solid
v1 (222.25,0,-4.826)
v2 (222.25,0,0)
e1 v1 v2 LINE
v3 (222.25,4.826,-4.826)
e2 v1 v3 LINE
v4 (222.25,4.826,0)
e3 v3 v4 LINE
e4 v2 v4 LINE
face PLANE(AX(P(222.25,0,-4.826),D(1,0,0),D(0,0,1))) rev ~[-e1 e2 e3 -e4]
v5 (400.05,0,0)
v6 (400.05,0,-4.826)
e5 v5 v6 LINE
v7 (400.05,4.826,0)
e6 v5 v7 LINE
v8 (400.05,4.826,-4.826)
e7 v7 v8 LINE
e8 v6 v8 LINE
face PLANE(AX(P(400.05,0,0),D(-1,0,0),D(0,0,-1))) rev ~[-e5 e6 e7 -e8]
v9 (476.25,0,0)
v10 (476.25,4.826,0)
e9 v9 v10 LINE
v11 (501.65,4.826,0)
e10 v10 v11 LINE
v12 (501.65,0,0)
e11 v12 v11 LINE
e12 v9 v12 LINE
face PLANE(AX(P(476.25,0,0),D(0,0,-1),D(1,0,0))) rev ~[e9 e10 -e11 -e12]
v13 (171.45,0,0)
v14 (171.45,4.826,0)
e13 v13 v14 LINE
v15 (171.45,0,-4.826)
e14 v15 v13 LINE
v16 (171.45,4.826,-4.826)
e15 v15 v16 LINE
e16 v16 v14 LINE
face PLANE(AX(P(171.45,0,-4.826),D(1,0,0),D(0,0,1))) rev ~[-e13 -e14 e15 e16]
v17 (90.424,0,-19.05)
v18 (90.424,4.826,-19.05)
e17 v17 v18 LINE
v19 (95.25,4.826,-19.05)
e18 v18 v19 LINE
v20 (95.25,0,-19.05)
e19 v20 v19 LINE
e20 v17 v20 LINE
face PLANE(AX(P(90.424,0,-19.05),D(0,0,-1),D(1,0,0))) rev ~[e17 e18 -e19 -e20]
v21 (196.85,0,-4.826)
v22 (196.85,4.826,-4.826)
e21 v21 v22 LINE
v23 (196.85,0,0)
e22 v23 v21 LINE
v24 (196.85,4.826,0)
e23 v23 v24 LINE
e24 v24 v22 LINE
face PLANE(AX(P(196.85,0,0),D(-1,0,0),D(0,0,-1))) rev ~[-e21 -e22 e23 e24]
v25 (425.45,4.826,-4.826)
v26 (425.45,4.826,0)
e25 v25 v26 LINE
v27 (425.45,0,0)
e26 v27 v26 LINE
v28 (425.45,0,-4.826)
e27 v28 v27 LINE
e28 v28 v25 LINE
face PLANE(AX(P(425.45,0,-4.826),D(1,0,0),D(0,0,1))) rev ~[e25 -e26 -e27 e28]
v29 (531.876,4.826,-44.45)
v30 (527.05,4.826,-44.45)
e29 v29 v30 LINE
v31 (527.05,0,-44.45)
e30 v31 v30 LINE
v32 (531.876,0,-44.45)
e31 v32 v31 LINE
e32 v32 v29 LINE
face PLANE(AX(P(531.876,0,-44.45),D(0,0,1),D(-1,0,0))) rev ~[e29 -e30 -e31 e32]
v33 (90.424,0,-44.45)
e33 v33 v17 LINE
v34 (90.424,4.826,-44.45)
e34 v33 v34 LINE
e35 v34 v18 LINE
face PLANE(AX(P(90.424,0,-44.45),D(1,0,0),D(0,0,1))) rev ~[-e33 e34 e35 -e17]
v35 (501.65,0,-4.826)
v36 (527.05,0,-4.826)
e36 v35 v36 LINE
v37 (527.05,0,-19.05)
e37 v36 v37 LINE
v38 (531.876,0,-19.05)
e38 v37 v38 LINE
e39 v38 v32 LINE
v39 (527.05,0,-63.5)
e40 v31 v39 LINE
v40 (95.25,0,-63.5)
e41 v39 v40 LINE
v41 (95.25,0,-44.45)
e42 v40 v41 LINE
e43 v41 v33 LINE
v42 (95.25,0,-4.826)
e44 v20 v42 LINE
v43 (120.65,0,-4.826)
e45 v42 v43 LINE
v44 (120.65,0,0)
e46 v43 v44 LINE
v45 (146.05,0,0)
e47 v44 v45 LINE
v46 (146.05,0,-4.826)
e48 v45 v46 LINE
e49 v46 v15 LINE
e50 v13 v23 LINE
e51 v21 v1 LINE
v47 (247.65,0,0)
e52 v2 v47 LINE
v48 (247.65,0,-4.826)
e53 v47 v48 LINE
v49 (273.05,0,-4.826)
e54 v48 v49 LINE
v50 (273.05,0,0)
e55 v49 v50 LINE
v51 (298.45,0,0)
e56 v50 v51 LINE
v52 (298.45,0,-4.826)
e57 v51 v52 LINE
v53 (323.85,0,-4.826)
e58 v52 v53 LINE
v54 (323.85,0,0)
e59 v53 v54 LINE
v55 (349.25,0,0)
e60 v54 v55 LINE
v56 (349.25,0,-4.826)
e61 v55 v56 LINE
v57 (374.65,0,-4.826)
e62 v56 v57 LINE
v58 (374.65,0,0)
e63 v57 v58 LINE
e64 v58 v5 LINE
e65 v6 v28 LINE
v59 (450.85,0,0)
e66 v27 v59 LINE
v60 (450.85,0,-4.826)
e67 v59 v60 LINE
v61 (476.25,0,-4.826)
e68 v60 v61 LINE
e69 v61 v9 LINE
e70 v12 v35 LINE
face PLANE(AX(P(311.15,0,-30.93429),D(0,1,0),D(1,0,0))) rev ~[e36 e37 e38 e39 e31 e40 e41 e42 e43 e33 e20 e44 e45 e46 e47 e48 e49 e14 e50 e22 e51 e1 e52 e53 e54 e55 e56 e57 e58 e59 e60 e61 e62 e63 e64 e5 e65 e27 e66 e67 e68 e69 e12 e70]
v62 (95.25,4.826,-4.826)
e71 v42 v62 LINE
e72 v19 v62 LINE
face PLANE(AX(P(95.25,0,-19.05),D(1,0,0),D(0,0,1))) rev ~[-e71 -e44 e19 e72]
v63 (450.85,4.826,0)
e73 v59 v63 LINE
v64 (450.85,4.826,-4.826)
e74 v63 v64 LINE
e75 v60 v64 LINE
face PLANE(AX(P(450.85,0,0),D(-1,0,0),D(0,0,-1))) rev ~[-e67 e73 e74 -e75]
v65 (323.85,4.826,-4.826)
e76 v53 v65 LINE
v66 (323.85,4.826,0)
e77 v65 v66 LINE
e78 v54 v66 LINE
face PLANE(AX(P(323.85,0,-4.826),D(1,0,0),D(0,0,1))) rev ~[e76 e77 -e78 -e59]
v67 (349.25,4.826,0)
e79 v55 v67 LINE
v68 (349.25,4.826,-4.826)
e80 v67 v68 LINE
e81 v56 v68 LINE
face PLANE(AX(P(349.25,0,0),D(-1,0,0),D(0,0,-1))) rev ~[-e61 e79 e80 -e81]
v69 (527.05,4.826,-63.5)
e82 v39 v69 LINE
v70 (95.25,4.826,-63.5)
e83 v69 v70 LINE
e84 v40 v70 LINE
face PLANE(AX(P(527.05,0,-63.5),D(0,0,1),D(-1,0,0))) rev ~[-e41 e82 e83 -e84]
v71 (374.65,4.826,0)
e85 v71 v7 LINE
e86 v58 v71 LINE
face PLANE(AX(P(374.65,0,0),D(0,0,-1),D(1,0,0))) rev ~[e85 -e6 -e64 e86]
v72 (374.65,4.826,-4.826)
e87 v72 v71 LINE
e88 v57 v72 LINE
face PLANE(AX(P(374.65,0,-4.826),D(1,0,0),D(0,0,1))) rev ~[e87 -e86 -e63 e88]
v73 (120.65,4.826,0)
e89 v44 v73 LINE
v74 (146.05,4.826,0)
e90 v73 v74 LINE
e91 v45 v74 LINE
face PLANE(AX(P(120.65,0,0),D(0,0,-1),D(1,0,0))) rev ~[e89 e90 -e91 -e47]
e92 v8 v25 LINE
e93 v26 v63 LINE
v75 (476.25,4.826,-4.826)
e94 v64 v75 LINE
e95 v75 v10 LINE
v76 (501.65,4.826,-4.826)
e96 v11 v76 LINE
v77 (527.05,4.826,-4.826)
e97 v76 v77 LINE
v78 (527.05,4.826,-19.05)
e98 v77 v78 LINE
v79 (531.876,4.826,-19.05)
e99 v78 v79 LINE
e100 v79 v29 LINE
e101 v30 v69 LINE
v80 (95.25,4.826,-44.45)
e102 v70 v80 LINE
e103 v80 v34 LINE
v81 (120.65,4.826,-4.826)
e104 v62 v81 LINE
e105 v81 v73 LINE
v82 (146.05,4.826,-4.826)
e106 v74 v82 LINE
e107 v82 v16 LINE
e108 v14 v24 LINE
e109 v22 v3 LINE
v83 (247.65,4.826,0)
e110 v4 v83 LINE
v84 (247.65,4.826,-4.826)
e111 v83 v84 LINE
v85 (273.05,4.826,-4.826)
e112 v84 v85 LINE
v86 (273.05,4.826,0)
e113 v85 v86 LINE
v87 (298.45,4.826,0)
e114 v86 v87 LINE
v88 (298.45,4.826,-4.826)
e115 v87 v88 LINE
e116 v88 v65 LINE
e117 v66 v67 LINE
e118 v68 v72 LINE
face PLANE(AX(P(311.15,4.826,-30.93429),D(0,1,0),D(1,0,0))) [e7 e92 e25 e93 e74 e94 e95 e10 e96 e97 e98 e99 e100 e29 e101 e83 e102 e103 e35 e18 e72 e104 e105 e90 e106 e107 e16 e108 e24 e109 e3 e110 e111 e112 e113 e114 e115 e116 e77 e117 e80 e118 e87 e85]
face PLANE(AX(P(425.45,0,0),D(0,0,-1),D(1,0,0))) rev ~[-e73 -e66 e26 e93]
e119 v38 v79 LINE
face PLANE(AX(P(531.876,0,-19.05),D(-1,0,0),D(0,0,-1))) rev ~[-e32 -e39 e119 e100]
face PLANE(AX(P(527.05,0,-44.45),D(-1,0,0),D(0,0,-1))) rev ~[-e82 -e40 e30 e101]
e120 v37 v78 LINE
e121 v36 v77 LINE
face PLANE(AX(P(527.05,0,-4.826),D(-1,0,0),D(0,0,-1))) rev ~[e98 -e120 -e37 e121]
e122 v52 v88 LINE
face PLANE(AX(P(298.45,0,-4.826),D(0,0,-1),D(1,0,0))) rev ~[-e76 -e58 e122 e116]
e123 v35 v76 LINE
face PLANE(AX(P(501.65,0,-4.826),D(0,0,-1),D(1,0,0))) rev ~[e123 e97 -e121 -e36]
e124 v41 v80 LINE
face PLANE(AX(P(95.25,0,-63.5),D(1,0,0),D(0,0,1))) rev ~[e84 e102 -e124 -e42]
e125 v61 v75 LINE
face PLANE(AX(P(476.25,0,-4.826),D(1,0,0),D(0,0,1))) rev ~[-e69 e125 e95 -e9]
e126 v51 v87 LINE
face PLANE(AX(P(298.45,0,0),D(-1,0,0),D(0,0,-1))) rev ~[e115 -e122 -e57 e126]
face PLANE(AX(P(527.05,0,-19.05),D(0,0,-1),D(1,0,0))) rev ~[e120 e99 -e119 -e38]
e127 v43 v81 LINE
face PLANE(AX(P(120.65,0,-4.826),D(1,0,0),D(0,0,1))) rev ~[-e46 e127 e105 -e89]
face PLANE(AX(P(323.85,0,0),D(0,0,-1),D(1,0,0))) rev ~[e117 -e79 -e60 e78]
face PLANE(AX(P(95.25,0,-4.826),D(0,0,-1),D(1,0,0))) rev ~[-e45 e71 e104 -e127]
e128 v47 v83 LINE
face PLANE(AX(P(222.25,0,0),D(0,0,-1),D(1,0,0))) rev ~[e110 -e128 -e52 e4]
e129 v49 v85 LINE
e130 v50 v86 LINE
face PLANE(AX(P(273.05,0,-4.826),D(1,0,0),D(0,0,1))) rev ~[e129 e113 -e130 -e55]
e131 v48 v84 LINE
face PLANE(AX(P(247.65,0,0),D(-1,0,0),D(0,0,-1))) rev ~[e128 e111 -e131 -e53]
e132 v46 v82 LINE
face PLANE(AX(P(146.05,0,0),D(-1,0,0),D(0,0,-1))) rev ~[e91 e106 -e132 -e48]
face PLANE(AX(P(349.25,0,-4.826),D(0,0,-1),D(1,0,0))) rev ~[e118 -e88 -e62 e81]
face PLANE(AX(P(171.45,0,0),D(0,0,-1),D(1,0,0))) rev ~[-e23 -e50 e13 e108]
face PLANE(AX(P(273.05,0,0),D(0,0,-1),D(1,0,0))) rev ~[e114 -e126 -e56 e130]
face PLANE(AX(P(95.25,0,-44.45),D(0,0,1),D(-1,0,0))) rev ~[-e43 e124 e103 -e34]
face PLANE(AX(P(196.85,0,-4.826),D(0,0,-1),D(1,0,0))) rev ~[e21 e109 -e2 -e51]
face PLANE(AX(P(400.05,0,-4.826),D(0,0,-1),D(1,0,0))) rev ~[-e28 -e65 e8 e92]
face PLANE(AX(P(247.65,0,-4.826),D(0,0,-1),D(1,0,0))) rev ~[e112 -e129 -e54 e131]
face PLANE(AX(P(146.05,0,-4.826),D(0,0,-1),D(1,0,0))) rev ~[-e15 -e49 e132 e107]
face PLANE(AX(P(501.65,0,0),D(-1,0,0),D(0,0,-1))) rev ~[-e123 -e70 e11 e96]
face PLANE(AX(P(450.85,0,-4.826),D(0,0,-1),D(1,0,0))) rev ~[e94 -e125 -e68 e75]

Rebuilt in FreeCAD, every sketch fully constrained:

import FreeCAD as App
import Part
import Sketcher

V = App.Vector
Q = App.Units.Quantity


def add_polygon(sketch, points):
    """Adds a closed chain of lines whose ends are joined by coincident constraints."""
    first, n = sketch.GeometryCount, len(points)
    for a, b in zip(points, points[1:] + points[:1]):
        sketch.addGeometry(Part.LineSegment(App.Vector(*a, 0), App.Vector(*b, 0)), False)
    for i in range(n):
        sketch.addConstraint(Sketcher.Constraint("Coincident", first + i, 2, first + (i + 1) % n, 1))

doc = App.newDocument("Part")
body = doc.addObject("PartDesign::Body", "Body")

# Sketch on XZ plane
sketch1 = body.newObject("Sketcher::SketchObject", "Sketch")
sketch1.AttachmentSupport = (doc.getObject("XZ_Plane"), [""])
sketch1.MapMode = "FlatFace"
add_polygon(sketch1, [(120.65, 0), (146.05, 0), (146.05, -4.826), (171.45, -4.826), (171.45, 0), (196.85, 0), (196.85, -4.826), (222.25, -4.826), (222.25, 0), (247.65, 0), (247.65, -4.826), (273.05, -4.826), (273.05, 0), (298.45, 0), (298.45, -4.826), (323.85, -4.826), (323.85, 0), (349.25, 0), (349.25, -4.826), (374.65, -4.826), (374.65, 0), (400.05, 0), (400.05, -4.826), (425.45, -4.826), (425.45, 0), (450.85, 0), (450.85, -4.826), (476.25, -4.826), (476.25, 0), (501.65, 0), (501.65, -4.826), (527.05, -4.826), (527.05, -19.05), (531.876, -19.05), (531.876, -44.45), (527.05, -44.45), (527.05, -63.5), (95.25, -63.5), (95.25, -44.45), (90.424, -44.45), (90.424, -19.05), (95.25, -19.05), (95.25, -4.826), (120.65, -4.826)])  # lines 0-43
sketch1.addConstraint(Sketcher.Constraint("Horizontal", 0))
sketch1.addConstraint(Sketcher.Constraint("Vertical", 1))
sketch1.addConstraint(Sketcher.Constraint("Horizontal", 2))
sketch1.addConstraint(Sketcher.Constraint("Vertical", 3))
sketch1.addConstraint(Sketcher.Constraint("Horizontal", 4))
sketch1.addConstraint(Sketcher.Constraint("Vertical", 5))
sketch1.addConstraint(Sketcher.Constraint("Horizontal", 6))
sketch1.addConstraint(Sketcher.Constraint("Vertical", 7))
sketch1.addConstraint(Sketcher.Constraint("Horizontal", 8))
sketch1.addConstraint(Sketcher.Constraint("Vertical", 9))
sketch1.addConstraint(Sketcher.Constraint("Horizontal", 10))
sketch1.addConstraint(Sketcher.Constraint("Vertical", 11))
sketch1.addConstraint(Sketcher.Constraint("Horizontal", 12))
sketch1.addConstraint(Sketcher.Constraint("Vertical", 13))
sketch1.addConstraint(Sketcher.Constraint("Horizontal", 14))
sketch1.addConstraint(Sketcher.Constraint("Vertical", 15))
sketch1.addConstraint(Sketcher.Constraint("Horizontal", 16))
sketch1.addConstraint(Sketcher.Constraint("Vertical", 17))
sketch1.addConstraint(Sketcher.Constraint("Horizontal", 18))
sketch1.addConstraint(Sketcher.Constraint("Vertical", 19))
sketch1.addConstraint(Sketcher.Constraint("Horizontal", 20))
sketch1.addConstraint(Sketcher.Constraint("Vertical", 21))
sketch1.addConstraint(Sketcher.Constraint("Horizontal", 22))
sketch1.addConstraint(Sketcher.Constraint("Vertical", 23))
sketch1.addConstraint(Sketcher.Constraint("Horizontal", 24))
sketch1.addConstraint(Sketcher.Constraint("Vertical", 25))
sketch1.addConstraint(Sketcher.Constraint("Horizontal", 26))
sketch1.addConstraint(Sketcher.Constraint("Vertical", 27))
sketch1.addConstraint(Sketcher.Constraint("Horizontal", 28))
sketch1.addConstraint(Sketcher.Constraint("Vertical", 29))
sketch1.addConstraint(Sketcher.Constraint("Horizontal", 30))
sketch1.addConstraint(Sketcher.Constraint("Vertical", 31))
sketch1.addConstraint(Sketcher.Constraint("Horizontal", 32))
sketch1.addConstraint(Sketcher.Constraint("Vertical", 33))
sketch1.addConstraint(Sketcher.Constraint("Horizontal", 34))
sketch1.addConstraint(Sketcher.Constraint("Vertical", 35))
sketch1.addConstraint(Sketcher.Constraint("Horizontal", 36))
sketch1.addConstraint(Sketcher.Constraint("Vertical", 37))
sketch1.addConstraint(Sketcher.Constraint("Horizontal", 38))
sketch1.addConstraint(Sketcher.Constraint("Vertical", 39))
sketch1.addConstraint(Sketcher.Constraint("Horizontal", 40))
sketch1.addConstraint(Sketcher.Constraint("Vertical", 41))
sketch1.addConstraint(Sketcher.Constraint("Horizontal", 42))
sketch1.addConstraint(Sketcher.Constraint("Vertical", 43))
sketch1.addConstraint(Sketcher.Constraint("PointOnObject", 0, 2, -1))
sketch1.addConstraint(Sketcher.Constraint("PointOnObject", 3, 2, -1))
sketch1.addConstraint(Sketcher.Constraint("PointOnObject", 7, 2, -1))
sketch1.addConstraint(Sketcher.Constraint("PointOnObject", 11, 2, -1))
sketch1.addConstraint(Sketcher.Constraint("PointOnObject", 15, 2, -1))
sketch1.addConstraint(Sketcher.Constraint("PointOnObject", 19, 2, -1))
sketch1.addConstraint(Sketcher.Constraint("PointOnObject", 23, 2, -1))
sketch1.addConstraint(Sketcher.Constraint("PointOnObject", 27, 2, -1))
sketch1.addConstraint(Sketcher.Constraint("Horizontal", 2, 2, 5, 2))
sketch1.addConstraint(Sketcher.Constraint("Horizontal", 6, 2, 9, 2))
sketch1.addConstraint(Sketcher.Constraint("Horizontal", 10, 2, 13, 2))
sketch1.addConstraint(Sketcher.Constraint("Horizontal", 14, 2, 17, 2))
sketch1.addConstraint(Sketcher.Constraint("Horizontal", 18, 2, 21, 2))
sketch1.addConstraint(Sketcher.Constraint("Horizontal", 22, 2, 25, 2))
sketch1.addConstraint(Sketcher.Constraint("Horizontal", 26, 2, 29, 2))
sketch1.addConstraint(Sketcher.Constraint("Horizontal", 34, 2, 37, 2))
sketch1.addConstraint(Sketcher.Constraint("Horizontal", 32, 2, 39, 2))
sketch1.addConstraint(Sketcher.Constraint("Horizontal", 30, 2, 41, 2))
sketch1.addConstraint(Sketcher.Constraint("Vertical", 31, 2, 34, 2))
sketch1.addConstraint(Sketcher.Constraint("Vertical", 37, 2, 40, 2))
sketch1.addConstraint(Sketcher.Constraint("Equal", 0, 2))
sketch1.addConstraint(Sketcher.Constraint("Equal", 2, 4))
sketch1.addConstraint(Sketcher.Constraint("Equal", 4, 6))
sketch1.addConstraint(Sketcher.Constraint("Equal", 6, 8))
sketch1.addConstraint(Sketcher.Constraint("Equal", 8, 10))
sketch1.addConstraint(Sketcher.Constraint("Equal", 10, 12))
sketch1.addConstraint(Sketcher.Constraint("Equal", 12, 14))
sketch1.addConstraint(Sketcher.Constraint("Equal", 14, 16))
sketch1.addConstraint(Sketcher.Constraint("Equal", 16, 18))
sketch1.addConstraint(Sketcher.Constraint("Equal", 18, 20))
sketch1.addConstraint(Sketcher.Constraint("Equal", 20, 22))
sketch1.addConstraint(Sketcher.Constraint("Equal", 22, 24))
sketch1.addConstraint(Sketcher.Constraint("Equal", 24, 26))
sketch1.addConstraint(Sketcher.Constraint("Equal", 26, 28))
sketch1.addConstraint(Sketcher.Constraint("Equal", 28, 30))
sketch1.addConstraint(Sketcher.Constraint("Equal", 34, 38))
sketch1.addConstraint(Sketcher.Constraint("Equal", 30, 42))
sketch1.addConstraint(Sketcher.Constraint("Equal", 40, 1))
sketch1.addConstraint(Sketcher.Constraint("Equal", 42, 33))
sketch1.addConstraint(Sketcher.Constraint("DistanceX", 0, 1, 0, 2, Q("1 in")))
sketch1.addConstraint(Sketcher.Constraint("DistanceX", 32, 1, 32, 2, Q("0.19 in")))
sketch1.addConstraint(Sketcher.Constraint("DistanceY", 31, 2, 31, 1, Q("0.56 in")))
sketch1.addConstraint(Sketcher.Constraint("DistanceY", 35, 2, 35, 1, Q("0.75 in")))
sketch1.addConstraint(Sketcher.Constraint("DistanceX", -1, 1, 0, 2, Q("5.75 in")))
pad1 = body.newObject("PartDesign::Pad", "Pad")
pad1.Profile = sketch1
pad1.Length = Q("0.19 in")
pad1.Reversed = True

doc.recompute()
